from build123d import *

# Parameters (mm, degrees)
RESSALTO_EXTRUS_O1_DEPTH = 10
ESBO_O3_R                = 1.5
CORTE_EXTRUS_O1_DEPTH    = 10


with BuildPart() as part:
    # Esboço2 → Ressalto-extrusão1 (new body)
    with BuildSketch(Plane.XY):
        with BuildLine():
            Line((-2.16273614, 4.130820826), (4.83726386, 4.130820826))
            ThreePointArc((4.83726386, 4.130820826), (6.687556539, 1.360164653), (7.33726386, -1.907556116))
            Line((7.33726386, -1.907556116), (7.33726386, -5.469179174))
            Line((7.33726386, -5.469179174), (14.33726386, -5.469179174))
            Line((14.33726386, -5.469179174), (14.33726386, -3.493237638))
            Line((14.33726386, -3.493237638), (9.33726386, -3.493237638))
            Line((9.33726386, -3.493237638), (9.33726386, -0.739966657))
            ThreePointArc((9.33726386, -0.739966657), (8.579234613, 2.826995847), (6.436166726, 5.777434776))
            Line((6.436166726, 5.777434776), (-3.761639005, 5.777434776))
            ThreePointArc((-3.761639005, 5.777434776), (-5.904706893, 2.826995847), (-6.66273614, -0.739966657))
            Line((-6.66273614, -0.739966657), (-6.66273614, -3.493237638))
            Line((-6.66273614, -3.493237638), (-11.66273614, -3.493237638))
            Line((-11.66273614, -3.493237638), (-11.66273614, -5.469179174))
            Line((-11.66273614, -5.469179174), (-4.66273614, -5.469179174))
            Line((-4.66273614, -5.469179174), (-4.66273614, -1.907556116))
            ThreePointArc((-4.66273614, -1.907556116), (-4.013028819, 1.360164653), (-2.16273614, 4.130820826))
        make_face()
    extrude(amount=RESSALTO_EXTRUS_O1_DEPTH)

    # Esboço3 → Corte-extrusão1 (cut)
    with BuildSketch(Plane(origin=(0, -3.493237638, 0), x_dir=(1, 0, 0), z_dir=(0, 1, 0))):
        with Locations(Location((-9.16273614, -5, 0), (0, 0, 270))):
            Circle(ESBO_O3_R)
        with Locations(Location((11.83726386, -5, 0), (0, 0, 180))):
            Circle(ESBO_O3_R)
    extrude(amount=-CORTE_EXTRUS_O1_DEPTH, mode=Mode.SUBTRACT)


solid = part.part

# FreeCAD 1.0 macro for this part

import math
import FreeCAD as App
import Part
import Sketcher
Q = App.Units.Quantity

doc = App.newDocument("Part")
body = doc.addObject("PartDesign::Body", "Body")

# Sketch on XY plane
sketch1 = body.newObject("Sketcher::SketchObject", "Sketch")
sketch1.AttachmentSupport = (doc.getObject("XY_Plane"), [""])
sketch1.MapMode = "FlatFace"
sketch1.addGeometry([
    Part.LineSegment(App.Vector(-2.162736, 4.130821, 0), App.Vector(4.837264, 4.130821, 0)),  # 0
    Part.ArcOfCircle(Part.Circle(App.Vector(-1.205135, -1.907556, 0), App.Vector(0, 0, 1), 8.542399), math.radians(0), math.radians(44.980923)),  # 1
    Part.LineSegment(App.Vector(7.337264, -1.907556, 0), App.Vector(7.337264, -5.469179, 0)),  # 2
    Part.LineSegment(App.Vector(7.337264, -5.469179, 0), App.Vector(14.337264, -5.469179, 0)),  # 3
    Part.LineSegment(App.Vector(14.337264, -5.469179, 0), App.Vector(14.337264, -3.493238, 0)),  # 4
    Part.LineSegment(App.Vector(14.337264, -3.493238, 0), App.Vector(9.337264, -3.493238, 0)),  # 5
    Part.LineSegment(App.Vector(9.337264, -3.493238, 0), App.Vector(9.337264, -0.739967, 0)),  # 6
    Part.ArcOfCircle(Part.Circle(App.Vector(0.565947, -0.739967, 0), App.Vector(0, 0, 1), 8.771317), math.radians(0), math.radians(47.990653)),  # 7
    Part.LineSegment(App.Vector(6.436167, 5.777435, 0), App.Vector(-3.761639, 5.777435, 0)),  # 8
    Part.ArcOfCircle(Part.Circle(App.Vector(2.108581, -0.739967, 0), App.Vector(0, 0, 1), 8.771317), math.radians(132.009347), math.radians(180)),  # 9
    Part.LineSegment(App.Vector(-6.662736, -0.739967, 0), App.Vector(-6.662736, -3.493238, 0)),  # 10
    Part.LineSegment(App.Vector(-6.662736, -3.493238, 0), App.Vector(-11.662736, -3.493238, 0)),  # 11
    Part.LineSegment(App.Vector(-11.662736, -3.493238, 0), App.Vector(-11.662736, -5.469179, 0)),  # 12
    Part.LineSegment(App.Vector(-11.662736, -5.469179, 0), App.Vector(-4.662736, -5.469179, 0)),  # 13
    Part.LineSegment(App.Vector(-4.662736, -5.469179, 0), App.Vector(-4.662736, -1.907556, 0)),  # 14
    Part.ArcOfCircle(Part.Circle(App.Vector(3.879663, -1.907556, 0), App.Vector(0, 0, 1), 8.542399), math.radians(135.019077), math.radians(180)),  # 15
], False)
sketch1.addConstraint([
    Sketcher.Constraint("Coincident", 0, 2, 1, 2),
    Sketcher.Constraint("Tangent", 1, 1, 2, 1),
    Sketcher.Constraint("Coincident", 2, 2, 3, 1),
    Sketcher.Constraint("Coincident", 3, 2, 4, 1),
    Sketcher.Constraint("Coincident", 4, 2, 5, 1),
    Sketcher.Constraint("Coincident", 5, 2, 6, 1),
    Sketcher.Constraint("Tangent", 6, 2, 7, 1),
    Sketcher.Constraint("Coincident", 7, 2, 8, 1),
    Sketcher.Constraint("Coincident", 8, 2, 9, 1),
    Sketcher.Constraint("Tangent", 9, 2, 10, 1),
    Sketcher.Constraint("Coincident", 10, 2, 11, 1),
    Sketcher.Constraint("Coincident", 11, 2, 12, 1),
    Sketcher.Constraint("Coincident", 12, 2, 13, 1),
    Sketcher.Constraint("Coincident", 13, 2, 14, 1),
    Sketcher.Constraint("Tangent", 14, 2, 15, 2),
    Sketcher.Constraint("Coincident", 15, 1, 0, 1),
    Sketcher.Constraint("Horizontal", 0),
    Sketcher.Constraint("Vertical", 2),
    Sketcher.Constraint("Horizontal", 3),
    Sketcher.Constraint("Vertical", 4),
    Sketcher.Constraint("Horizontal", 5),
    Sketcher.Constraint("Vertical", 6),
    Sketcher.Constraint("Horizontal", 8),
    Sketcher.Constraint("Vertical", 10),
    Sketcher.Constraint("Horizontal", 11),
    Sketcher.Constraint("Vertical", 12),
    Sketcher.Constraint("Horizontal", 13),
    Sketcher.Constraint("Vertical", 14),
    Sketcher.Constraint("Equal", 7, 9),
    Sketcher.Constraint("Equal", 1, 15),
    Sketcher.Constraint("Horizontal", 7, 3, 9, 3),
    Sketcher.Constraint("Horizontal", 1, 3, 15, 3),
    Sketcher.Constraint("Horizontal", 5, 2, 10, 2),
    Sketcher.Constraint("Horizontal", 3, 2, 12, 2),
    Sketcher.Constraint("Equal", 0, 3),
    Sketcher.Constraint("Equal", 5, 11),
    Sketcher.Constraint("Equal", 3, 13),
    Sketcher.Constraint("DistanceX", 0, 1, 0, 2, Q("7 mm")),
    Sketcher.Constraint("DistanceX", 5, 2, 5, 1, Q("5 mm")),
    Sketcher.Constraint("Radius", 1, Q("8.542399 mm")),
    Sketcher.Constraint("DistanceX", 0, 2, 1, 1, Q("2.5 mm")),
    Sketcher.Constraint("DistanceY", 3, 2, 0, 2, Q("9.6 mm")),
    Sketcher.Constraint("Radius", 7, Q("8.771317 mm")),
    Sketcher.Constraint("DistanceY", 4, 1, 4, 2, Q("1.975942 mm")),
    Sketcher.Constraint("DistanceY", 6, 1, 6, 2, Q("2.753271 mm")),
    Sketcher.Constraint("DistanceY", 6, 2, 7, 2, Q("6.517401 mm")),
    Sketcher.Constraint("DistanceX", -1, 1, 9, 3, Q("2.108581 mm")),
    Sketcher.Constraint("DistanceY", -1, 1, 0, 2, Q("4.130821 mm")),
])
pad1 = body.newObject("PartDesign::Pad", "Pad")
pad1.Profile = sketch1
pad1.Length = 10

# Sketch on XZ plane
sketch2 = body.newObject("Sketcher::SketchObject", "Sketch001")
sketch2.AttachmentSupport = (doc.getObject("XZ_Plane"), [""])
sketch2.MapMode = "FlatFace"
sketch2.AttachmentOffset = App.Placement(App.Vector(0, 0, 3.493238), App.Rotation())
sketch2.addGeometry([
    Part.Circle(App.Vector(-9.162736, 5, 0), App.Vector(0, 0, 1), 1.5),
    Part.Circle(App.Vector(11.837264, 5, 0), App.Vector(0, 0, 1), 1.5),
], False)
sketch2.addConstraint([
    Sketcher.Constraint("Equal", 0, 1),
    Sketcher.Constraint("Horizontal", 0, 3, 1, 3),
    Sketcher.Constraint("Diameter", 0, Q("3 mm")),
    Sketcher.Constraint("DistanceY", -1, 1, 0, 3, Q("5 mm")),
    Sketcher.Constraint("DistanceX", 0, 3, 1, 3, Q("21 mm")),
    Sketcher.Constraint("DistanceX", 0, 3, -1, 1, Q("9.162736 mm")),
])
pocket1 = body.newObject("PartDesign::Pocket", "Pocket")
pocket1.Profile = sketch2
pocket1.Length = 10
pocket1.Reversed = True

doc.recompute()
